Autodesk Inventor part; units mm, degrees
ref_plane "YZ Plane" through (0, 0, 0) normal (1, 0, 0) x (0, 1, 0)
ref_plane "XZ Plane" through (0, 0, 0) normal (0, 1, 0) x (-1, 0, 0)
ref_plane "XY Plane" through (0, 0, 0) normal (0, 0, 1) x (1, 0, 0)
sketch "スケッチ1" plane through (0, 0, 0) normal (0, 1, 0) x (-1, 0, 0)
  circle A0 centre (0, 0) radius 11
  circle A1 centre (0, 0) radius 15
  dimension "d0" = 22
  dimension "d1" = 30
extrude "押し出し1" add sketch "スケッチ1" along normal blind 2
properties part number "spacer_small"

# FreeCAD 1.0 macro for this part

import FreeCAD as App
import Part
import Sketcher
from FreeCAD import Vector

doc = App.newDocument("Part")
body = doc.addObject("PartDesign::Body", "Body")

# Sketch on XZ plane
sketch1 = body.newObject("Sketcher::SketchObject", "Sketch")
sketch1.AttachmentSupport = (doc.getObject("XZ_Plane"), [""])
sketch1.MapMode = "FlatFace"
sketch1.addGeometry([
    Part.Circle(Vector(0, 0, 0), Vector(0, 0, 1), 15),
    Part.Circle(Vector(0, 0, 0), Vector(0, 0, 1), 11),
], False)
sketch1.addConstraint([
    Sketcher.Constraint("Coincident", 0, 3, -1, 1),
    Sketcher.Constraint("Coincident", 1, 3, -1, 1),
    Sketcher.Constraint("Diameter", 0, 30.0),
    Sketcher.Constraint("Diameter", 1, 22.0),
])
pad1 = body.newObject("PartDesign::Pad", "Pad")
pad1.Profile = sketch1
pad1.Length = 2
pad1.Reversed = True

doc.recompute()
